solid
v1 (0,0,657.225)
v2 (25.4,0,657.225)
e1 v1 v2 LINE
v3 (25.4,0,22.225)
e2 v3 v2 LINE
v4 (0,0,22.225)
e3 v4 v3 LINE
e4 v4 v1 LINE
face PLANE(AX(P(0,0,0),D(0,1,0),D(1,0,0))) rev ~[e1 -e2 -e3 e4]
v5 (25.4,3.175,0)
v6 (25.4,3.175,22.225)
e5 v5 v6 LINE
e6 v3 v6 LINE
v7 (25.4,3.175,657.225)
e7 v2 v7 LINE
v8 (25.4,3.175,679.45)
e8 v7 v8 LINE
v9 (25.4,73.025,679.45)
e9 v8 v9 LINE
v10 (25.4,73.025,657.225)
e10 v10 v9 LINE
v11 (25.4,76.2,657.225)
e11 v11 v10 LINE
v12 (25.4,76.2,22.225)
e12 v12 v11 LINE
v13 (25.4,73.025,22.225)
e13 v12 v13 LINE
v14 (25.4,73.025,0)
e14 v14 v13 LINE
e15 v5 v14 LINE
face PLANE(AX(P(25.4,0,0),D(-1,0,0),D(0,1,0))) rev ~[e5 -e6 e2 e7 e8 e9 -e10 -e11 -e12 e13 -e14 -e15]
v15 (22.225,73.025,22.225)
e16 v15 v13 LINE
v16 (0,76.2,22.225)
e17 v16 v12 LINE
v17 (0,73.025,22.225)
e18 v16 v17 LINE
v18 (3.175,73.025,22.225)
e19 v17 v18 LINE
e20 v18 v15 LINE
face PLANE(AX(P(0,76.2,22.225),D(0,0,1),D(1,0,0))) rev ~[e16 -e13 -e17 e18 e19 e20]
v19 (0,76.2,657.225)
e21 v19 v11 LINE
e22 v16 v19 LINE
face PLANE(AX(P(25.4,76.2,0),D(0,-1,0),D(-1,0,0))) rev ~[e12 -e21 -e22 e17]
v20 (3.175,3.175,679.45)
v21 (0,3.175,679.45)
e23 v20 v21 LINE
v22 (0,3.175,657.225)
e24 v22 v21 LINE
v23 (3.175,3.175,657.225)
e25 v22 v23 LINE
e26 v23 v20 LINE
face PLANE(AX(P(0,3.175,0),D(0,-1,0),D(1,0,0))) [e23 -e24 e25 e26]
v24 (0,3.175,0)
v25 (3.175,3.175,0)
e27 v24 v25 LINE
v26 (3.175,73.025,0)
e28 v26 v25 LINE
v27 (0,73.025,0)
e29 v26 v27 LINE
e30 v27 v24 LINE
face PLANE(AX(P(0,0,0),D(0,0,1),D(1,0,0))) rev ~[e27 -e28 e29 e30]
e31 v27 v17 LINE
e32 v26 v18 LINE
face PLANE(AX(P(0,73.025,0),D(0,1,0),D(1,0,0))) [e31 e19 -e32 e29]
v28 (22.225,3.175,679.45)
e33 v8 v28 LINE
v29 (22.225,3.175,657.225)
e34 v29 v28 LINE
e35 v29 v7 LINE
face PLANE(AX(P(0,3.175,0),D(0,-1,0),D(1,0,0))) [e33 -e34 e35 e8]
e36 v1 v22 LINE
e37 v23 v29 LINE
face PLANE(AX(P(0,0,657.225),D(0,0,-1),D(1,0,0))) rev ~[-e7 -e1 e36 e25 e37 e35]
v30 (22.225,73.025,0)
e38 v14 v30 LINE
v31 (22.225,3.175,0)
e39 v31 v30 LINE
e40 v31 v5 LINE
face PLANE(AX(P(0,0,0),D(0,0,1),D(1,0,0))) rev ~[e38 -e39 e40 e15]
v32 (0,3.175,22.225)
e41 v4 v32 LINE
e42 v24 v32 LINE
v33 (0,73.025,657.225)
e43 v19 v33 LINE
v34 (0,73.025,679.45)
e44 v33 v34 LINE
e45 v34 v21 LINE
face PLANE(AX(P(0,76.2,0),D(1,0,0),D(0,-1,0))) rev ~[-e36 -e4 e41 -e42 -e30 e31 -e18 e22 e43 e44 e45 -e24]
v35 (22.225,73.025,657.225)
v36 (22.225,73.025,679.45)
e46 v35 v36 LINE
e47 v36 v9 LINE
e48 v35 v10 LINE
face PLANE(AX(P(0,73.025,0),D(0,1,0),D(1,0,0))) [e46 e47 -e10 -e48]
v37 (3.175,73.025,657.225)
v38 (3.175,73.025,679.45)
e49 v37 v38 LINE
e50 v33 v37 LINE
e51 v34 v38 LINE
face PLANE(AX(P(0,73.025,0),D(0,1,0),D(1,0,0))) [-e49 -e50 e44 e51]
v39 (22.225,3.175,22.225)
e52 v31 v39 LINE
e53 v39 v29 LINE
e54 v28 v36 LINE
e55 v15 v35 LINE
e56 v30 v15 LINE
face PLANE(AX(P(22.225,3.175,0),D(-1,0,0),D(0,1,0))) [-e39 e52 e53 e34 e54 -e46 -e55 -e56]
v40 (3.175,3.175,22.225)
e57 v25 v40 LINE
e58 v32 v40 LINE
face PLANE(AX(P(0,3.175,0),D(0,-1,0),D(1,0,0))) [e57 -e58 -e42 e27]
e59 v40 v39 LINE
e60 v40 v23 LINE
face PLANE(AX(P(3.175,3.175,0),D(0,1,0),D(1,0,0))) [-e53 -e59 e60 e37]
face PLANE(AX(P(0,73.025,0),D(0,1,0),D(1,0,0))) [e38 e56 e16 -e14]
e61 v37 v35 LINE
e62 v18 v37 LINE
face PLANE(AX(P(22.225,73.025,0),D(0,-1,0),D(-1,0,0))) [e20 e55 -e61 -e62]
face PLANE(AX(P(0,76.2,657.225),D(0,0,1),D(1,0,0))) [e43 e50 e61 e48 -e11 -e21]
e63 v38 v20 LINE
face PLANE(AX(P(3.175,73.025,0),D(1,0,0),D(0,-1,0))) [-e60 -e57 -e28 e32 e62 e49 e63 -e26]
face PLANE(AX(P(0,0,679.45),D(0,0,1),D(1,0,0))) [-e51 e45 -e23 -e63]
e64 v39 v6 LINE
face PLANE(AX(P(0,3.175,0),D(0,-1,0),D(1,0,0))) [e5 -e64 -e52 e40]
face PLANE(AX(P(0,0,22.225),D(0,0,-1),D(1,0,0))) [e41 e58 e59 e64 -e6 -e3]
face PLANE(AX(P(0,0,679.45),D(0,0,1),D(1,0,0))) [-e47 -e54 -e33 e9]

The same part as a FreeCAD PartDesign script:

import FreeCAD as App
import Part
import Sketcher
from FreeCAD import Vector
Q = App.Units.Quantity


def add_polygon(sketch, points):
    """Adds a closed chain of lines whose ends are joined by coincident constraints."""
    first, n = sketch.GeometryCount, len(points)
    for a, b in zip(points, points[1:] + points[:1]):
        sketch.addGeometry(Part.LineSegment(App.Vector(*a, 0), App.Vector(*b, 0)), False)
    for i in range(n):
        sketch.addConstraint(Sketcher.Constraint("Coincident", first + i, 2, first + (i + 1) % n, 1))

doc = App.newDocument("Part")
params = doc.addObject("Spreadsheet::Sheet", "Params")
for row, (alias, value) in enumerate([
    ("sketch1_width", "1 in"),
    ("sketch1_height", "3 in"),
    ("pad1_length", "26.75 in"),
    ("sketch2_width", "1 in"),
    ("sketch2_height", "0.875 in"),
    ("pocket1_length", "0.125 in"),
    ("sketch3_width", "1 in"),
    ("sketch3_height", "0.875 in"),
    ("pocket2_length", "0.125 in"),
], start=1):
    params.set(f"A{row}", alias)
    params.set(f"B{row}", "=" + value)
    params.setAlias(f"B{row}", alias)

body = doc.addObject("PartDesign::Body", "Body")

# Sketch on XY plane
sketch1 = body.newObject("Sketcher::SketchObject", "Sketch")
sketch1.AttachmentSupport = (doc.getObject("XY_Plane"), [""])
sketch1.MapMode = "FlatFace"
add_polygon(sketch1, [(0, 76), (0, 0), (25, 0), (25, 76)])  # lines 0-3
add_polygon(sketch1, [(22, 3), (3, 3), (3, 73), (22, 73)])  # lines 4-7
sketch1.addConstraint(Sketcher.Constraint("Vertical", 0))
sketch1.addConstraint(Sketcher.Constraint("Horizontal", 1))
sketch1.addConstraint(Sketcher.Constraint("Vertical", 2))
sketch1.addConstraint(Sketcher.Constraint("Horizontal", 3))
sketch1.addConstraint(Sketcher.Constraint("Horizontal", 4))
sketch1.addConstraint(Sketcher.Constraint("Vertical", 5))
sketch1.addConstraint(Sketcher.Constraint("Horizontal", 6))
sketch1.addConstraint(Sketcher.Constraint("Vertical", 7))
sketch1.addConstraint(Sketcher.Constraint("Coincident", 0, 2, -1, 1))
sketch1.addConstraint(Sketcher.Constraint("DistanceX", 1, 1, 1, 2, Q("1 in")))
sketch1.addConstraint(Sketcher.Constraint("DistanceY", 0, 2, 0, 1, Q("3 in")))
sketch1.addConstraint(Sketcher.Constraint("DistanceX", -1, 1, 4, 2, Q("0.125 in")))
sketch1.addConstraint(Sketcher.Constraint("DistanceY", -1, 1, 4, 2, Q("0.125 in")))
sketch1.addConstraint(Sketcher.Constraint("DistanceY", 5, 2, 3, 2, Q("0.125 in")))
sketch1.addConstraint(Sketcher.Constraint("DistanceX", 6, 2, 2, 2, Q("0.125 in")))
sketch1.setExpression("Constraints[17]", "Params.sketch1_width")
sketch1.setExpression("Constraints[18]", "Params.sketch1_height")
pad1 = body.newObject("PartDesign::Pad", "Pad")
pad1.Profile = sketch1
pad1.setExpression("Length", "Params.pad1_length")

# Sketch on XZ plane
sketch2 = body.newObject("Sketcher::SketchObject", "Sketch001")
sketch2.AttachmentSupport = (doc.getObject("XZ_Plane"), [""])
sketch2.MapMode = "FlatFace"
sketch2.AttachmentOffset = App.Placement(Vector(0, 0, -3 * 25.4), App.Rotation())
add_polygon(sketch2, [(0, 657), (0, 679), (25, 679), (25, 657)])  # lines 0-3
add_polygon(sketch2, [(0, 0), (0, 22), (25, 22), (25, 0)])  # lines 4-7
sketch2.addConstraint(Sketcher.Constraint("Vertical", 0))
sketch2.addConstraint(Sketcher.Constraint("Horizontal", 1))
sketch2.addConstraint(Sketcher.Constraint("Vertical", 2))
sketch2.addConstraint(Sketcher.Constraint("Horizontal", 3))
sketch2.addConstraint(Sketcher.Constraint("Vertical", 4))
sketch2.addConstraint(Sketcher.Constraint("Horizontal", 5))
sketch2.addConstraint(Sketcher.Constraint("Vertical", 6))
sketch2.addConstraint(Sketcher.Constraint("Horizontal", 7))
sketch2.addConstraint(Sketcher.Constraint("Coincident", 7, 2, -1, 1))
sketch2.addConstraint(Sketcher.Constraint("PointOnObject", 0, 2, -2))
sketch2.addConstraint(Sketcher.Constraint("Vertical", 2, 2, 5, 2))
sketch2.addConstraint(Sketcher.Constraint("Equal", 2, 4))
sketch2.addConstraint(Sketcher.Constraint("DistanceX", 1, 1, 1, 2, Q("1 in")))
sketch2.addConstraint(Sketcher.Constraint("DistanceY", 0, 1, 0, 2, Q("0.875 in")))
sketch2.addConstraint(Sketcher.Constraint("DistanceY", 4, 2, 3, 2, Q("25 in")))
sketch2.setExpression("Constraints[20]", "Params.sketch2_width")
sketch2.setExpression("Constraints[21]", "Params.sketch2_height")
pocket1 = body.newObject("PartDesign::Pocket", "Pocket")
pocket1.Profile = sketch2
pocket1.setExpression("Length", "Params.pocket1_length")
pocket1.Reversed = True

# Sketch on XZ plane
sketch3 = body.newObject("Sketcher::SketchObject", "Sketch002")
sketch3.AttachmentSupport = (doc.getObject("XZ_Plane"), [""])
sketch3.MapMode = "FlatFace"
add_polygon(sketch3, [(25, 657), (25, 679), (0, 679), (0, 657)])  # lines 0-3
add_polygon(sketch3, [(25, 0), (25, 22), (0, 22), (0, 0)])  # lines 4-7
sketch3.addConstraint(Sketcher.Constraint("Vertical", 0))
sketch3.addConstraint(Sketcher.Constraint("Horizontal", 1))
sketch3.addConstraint(Sketcher.Constraint("Vertical", 2))
sketch3.addConstraint(Sketcher.Constraint("Horizontal", 3))
sketch3.addConstraint(Sketcher.Constraint("Vertical", 4))
sketch3.addConstraint(Sketcher.Constraint("Horizontal", 5))
sketch3.addConstraint(Sketcher.Constraint("Vertical", 6))
sketch3.addConstraint(Sketcher.Constraint("Horizontal", 7))
sketch3.addConstraint(Sketcher.Constraint("Coincident", 6, 2, -1, 1))
sketch3.addConstraint(Sketcher.Constraint("PointOnObject", 1, 2, -2))
sketch3.addConstraint(Sketcher.Constraint("Vertical", 3, 2, 4, 2))
sketch3.addConstraint(Sketcher.Constraint("Equal", 2, 4))
sketch3.addConstraint(Sketcher.Constraint("DistanceX", 1, 2, 1, 1, Q("1 in")))
sketch3.addConstraint(Sketcher.Constraint("DistanceY", 0, 1, 0, 2, Q("0.875 in")))
sketch3.addConstraint(Sketcher.Constraint("DistanceY", 4, 2, 3, 2, Q("25 in")))
sketch3.setExpression("Constraints[20]", "Params.sketch3_width")
sketch3.setExpression("Constraints[21]", "Params.sketch3_height")
pocket2 = body.newObject("PartDesign::Pocket", "Pocket001")
pocket2.Profile = sketch3
pocket2.setExpression("Length", "Params.pocket2_length")

doc.recompute()
